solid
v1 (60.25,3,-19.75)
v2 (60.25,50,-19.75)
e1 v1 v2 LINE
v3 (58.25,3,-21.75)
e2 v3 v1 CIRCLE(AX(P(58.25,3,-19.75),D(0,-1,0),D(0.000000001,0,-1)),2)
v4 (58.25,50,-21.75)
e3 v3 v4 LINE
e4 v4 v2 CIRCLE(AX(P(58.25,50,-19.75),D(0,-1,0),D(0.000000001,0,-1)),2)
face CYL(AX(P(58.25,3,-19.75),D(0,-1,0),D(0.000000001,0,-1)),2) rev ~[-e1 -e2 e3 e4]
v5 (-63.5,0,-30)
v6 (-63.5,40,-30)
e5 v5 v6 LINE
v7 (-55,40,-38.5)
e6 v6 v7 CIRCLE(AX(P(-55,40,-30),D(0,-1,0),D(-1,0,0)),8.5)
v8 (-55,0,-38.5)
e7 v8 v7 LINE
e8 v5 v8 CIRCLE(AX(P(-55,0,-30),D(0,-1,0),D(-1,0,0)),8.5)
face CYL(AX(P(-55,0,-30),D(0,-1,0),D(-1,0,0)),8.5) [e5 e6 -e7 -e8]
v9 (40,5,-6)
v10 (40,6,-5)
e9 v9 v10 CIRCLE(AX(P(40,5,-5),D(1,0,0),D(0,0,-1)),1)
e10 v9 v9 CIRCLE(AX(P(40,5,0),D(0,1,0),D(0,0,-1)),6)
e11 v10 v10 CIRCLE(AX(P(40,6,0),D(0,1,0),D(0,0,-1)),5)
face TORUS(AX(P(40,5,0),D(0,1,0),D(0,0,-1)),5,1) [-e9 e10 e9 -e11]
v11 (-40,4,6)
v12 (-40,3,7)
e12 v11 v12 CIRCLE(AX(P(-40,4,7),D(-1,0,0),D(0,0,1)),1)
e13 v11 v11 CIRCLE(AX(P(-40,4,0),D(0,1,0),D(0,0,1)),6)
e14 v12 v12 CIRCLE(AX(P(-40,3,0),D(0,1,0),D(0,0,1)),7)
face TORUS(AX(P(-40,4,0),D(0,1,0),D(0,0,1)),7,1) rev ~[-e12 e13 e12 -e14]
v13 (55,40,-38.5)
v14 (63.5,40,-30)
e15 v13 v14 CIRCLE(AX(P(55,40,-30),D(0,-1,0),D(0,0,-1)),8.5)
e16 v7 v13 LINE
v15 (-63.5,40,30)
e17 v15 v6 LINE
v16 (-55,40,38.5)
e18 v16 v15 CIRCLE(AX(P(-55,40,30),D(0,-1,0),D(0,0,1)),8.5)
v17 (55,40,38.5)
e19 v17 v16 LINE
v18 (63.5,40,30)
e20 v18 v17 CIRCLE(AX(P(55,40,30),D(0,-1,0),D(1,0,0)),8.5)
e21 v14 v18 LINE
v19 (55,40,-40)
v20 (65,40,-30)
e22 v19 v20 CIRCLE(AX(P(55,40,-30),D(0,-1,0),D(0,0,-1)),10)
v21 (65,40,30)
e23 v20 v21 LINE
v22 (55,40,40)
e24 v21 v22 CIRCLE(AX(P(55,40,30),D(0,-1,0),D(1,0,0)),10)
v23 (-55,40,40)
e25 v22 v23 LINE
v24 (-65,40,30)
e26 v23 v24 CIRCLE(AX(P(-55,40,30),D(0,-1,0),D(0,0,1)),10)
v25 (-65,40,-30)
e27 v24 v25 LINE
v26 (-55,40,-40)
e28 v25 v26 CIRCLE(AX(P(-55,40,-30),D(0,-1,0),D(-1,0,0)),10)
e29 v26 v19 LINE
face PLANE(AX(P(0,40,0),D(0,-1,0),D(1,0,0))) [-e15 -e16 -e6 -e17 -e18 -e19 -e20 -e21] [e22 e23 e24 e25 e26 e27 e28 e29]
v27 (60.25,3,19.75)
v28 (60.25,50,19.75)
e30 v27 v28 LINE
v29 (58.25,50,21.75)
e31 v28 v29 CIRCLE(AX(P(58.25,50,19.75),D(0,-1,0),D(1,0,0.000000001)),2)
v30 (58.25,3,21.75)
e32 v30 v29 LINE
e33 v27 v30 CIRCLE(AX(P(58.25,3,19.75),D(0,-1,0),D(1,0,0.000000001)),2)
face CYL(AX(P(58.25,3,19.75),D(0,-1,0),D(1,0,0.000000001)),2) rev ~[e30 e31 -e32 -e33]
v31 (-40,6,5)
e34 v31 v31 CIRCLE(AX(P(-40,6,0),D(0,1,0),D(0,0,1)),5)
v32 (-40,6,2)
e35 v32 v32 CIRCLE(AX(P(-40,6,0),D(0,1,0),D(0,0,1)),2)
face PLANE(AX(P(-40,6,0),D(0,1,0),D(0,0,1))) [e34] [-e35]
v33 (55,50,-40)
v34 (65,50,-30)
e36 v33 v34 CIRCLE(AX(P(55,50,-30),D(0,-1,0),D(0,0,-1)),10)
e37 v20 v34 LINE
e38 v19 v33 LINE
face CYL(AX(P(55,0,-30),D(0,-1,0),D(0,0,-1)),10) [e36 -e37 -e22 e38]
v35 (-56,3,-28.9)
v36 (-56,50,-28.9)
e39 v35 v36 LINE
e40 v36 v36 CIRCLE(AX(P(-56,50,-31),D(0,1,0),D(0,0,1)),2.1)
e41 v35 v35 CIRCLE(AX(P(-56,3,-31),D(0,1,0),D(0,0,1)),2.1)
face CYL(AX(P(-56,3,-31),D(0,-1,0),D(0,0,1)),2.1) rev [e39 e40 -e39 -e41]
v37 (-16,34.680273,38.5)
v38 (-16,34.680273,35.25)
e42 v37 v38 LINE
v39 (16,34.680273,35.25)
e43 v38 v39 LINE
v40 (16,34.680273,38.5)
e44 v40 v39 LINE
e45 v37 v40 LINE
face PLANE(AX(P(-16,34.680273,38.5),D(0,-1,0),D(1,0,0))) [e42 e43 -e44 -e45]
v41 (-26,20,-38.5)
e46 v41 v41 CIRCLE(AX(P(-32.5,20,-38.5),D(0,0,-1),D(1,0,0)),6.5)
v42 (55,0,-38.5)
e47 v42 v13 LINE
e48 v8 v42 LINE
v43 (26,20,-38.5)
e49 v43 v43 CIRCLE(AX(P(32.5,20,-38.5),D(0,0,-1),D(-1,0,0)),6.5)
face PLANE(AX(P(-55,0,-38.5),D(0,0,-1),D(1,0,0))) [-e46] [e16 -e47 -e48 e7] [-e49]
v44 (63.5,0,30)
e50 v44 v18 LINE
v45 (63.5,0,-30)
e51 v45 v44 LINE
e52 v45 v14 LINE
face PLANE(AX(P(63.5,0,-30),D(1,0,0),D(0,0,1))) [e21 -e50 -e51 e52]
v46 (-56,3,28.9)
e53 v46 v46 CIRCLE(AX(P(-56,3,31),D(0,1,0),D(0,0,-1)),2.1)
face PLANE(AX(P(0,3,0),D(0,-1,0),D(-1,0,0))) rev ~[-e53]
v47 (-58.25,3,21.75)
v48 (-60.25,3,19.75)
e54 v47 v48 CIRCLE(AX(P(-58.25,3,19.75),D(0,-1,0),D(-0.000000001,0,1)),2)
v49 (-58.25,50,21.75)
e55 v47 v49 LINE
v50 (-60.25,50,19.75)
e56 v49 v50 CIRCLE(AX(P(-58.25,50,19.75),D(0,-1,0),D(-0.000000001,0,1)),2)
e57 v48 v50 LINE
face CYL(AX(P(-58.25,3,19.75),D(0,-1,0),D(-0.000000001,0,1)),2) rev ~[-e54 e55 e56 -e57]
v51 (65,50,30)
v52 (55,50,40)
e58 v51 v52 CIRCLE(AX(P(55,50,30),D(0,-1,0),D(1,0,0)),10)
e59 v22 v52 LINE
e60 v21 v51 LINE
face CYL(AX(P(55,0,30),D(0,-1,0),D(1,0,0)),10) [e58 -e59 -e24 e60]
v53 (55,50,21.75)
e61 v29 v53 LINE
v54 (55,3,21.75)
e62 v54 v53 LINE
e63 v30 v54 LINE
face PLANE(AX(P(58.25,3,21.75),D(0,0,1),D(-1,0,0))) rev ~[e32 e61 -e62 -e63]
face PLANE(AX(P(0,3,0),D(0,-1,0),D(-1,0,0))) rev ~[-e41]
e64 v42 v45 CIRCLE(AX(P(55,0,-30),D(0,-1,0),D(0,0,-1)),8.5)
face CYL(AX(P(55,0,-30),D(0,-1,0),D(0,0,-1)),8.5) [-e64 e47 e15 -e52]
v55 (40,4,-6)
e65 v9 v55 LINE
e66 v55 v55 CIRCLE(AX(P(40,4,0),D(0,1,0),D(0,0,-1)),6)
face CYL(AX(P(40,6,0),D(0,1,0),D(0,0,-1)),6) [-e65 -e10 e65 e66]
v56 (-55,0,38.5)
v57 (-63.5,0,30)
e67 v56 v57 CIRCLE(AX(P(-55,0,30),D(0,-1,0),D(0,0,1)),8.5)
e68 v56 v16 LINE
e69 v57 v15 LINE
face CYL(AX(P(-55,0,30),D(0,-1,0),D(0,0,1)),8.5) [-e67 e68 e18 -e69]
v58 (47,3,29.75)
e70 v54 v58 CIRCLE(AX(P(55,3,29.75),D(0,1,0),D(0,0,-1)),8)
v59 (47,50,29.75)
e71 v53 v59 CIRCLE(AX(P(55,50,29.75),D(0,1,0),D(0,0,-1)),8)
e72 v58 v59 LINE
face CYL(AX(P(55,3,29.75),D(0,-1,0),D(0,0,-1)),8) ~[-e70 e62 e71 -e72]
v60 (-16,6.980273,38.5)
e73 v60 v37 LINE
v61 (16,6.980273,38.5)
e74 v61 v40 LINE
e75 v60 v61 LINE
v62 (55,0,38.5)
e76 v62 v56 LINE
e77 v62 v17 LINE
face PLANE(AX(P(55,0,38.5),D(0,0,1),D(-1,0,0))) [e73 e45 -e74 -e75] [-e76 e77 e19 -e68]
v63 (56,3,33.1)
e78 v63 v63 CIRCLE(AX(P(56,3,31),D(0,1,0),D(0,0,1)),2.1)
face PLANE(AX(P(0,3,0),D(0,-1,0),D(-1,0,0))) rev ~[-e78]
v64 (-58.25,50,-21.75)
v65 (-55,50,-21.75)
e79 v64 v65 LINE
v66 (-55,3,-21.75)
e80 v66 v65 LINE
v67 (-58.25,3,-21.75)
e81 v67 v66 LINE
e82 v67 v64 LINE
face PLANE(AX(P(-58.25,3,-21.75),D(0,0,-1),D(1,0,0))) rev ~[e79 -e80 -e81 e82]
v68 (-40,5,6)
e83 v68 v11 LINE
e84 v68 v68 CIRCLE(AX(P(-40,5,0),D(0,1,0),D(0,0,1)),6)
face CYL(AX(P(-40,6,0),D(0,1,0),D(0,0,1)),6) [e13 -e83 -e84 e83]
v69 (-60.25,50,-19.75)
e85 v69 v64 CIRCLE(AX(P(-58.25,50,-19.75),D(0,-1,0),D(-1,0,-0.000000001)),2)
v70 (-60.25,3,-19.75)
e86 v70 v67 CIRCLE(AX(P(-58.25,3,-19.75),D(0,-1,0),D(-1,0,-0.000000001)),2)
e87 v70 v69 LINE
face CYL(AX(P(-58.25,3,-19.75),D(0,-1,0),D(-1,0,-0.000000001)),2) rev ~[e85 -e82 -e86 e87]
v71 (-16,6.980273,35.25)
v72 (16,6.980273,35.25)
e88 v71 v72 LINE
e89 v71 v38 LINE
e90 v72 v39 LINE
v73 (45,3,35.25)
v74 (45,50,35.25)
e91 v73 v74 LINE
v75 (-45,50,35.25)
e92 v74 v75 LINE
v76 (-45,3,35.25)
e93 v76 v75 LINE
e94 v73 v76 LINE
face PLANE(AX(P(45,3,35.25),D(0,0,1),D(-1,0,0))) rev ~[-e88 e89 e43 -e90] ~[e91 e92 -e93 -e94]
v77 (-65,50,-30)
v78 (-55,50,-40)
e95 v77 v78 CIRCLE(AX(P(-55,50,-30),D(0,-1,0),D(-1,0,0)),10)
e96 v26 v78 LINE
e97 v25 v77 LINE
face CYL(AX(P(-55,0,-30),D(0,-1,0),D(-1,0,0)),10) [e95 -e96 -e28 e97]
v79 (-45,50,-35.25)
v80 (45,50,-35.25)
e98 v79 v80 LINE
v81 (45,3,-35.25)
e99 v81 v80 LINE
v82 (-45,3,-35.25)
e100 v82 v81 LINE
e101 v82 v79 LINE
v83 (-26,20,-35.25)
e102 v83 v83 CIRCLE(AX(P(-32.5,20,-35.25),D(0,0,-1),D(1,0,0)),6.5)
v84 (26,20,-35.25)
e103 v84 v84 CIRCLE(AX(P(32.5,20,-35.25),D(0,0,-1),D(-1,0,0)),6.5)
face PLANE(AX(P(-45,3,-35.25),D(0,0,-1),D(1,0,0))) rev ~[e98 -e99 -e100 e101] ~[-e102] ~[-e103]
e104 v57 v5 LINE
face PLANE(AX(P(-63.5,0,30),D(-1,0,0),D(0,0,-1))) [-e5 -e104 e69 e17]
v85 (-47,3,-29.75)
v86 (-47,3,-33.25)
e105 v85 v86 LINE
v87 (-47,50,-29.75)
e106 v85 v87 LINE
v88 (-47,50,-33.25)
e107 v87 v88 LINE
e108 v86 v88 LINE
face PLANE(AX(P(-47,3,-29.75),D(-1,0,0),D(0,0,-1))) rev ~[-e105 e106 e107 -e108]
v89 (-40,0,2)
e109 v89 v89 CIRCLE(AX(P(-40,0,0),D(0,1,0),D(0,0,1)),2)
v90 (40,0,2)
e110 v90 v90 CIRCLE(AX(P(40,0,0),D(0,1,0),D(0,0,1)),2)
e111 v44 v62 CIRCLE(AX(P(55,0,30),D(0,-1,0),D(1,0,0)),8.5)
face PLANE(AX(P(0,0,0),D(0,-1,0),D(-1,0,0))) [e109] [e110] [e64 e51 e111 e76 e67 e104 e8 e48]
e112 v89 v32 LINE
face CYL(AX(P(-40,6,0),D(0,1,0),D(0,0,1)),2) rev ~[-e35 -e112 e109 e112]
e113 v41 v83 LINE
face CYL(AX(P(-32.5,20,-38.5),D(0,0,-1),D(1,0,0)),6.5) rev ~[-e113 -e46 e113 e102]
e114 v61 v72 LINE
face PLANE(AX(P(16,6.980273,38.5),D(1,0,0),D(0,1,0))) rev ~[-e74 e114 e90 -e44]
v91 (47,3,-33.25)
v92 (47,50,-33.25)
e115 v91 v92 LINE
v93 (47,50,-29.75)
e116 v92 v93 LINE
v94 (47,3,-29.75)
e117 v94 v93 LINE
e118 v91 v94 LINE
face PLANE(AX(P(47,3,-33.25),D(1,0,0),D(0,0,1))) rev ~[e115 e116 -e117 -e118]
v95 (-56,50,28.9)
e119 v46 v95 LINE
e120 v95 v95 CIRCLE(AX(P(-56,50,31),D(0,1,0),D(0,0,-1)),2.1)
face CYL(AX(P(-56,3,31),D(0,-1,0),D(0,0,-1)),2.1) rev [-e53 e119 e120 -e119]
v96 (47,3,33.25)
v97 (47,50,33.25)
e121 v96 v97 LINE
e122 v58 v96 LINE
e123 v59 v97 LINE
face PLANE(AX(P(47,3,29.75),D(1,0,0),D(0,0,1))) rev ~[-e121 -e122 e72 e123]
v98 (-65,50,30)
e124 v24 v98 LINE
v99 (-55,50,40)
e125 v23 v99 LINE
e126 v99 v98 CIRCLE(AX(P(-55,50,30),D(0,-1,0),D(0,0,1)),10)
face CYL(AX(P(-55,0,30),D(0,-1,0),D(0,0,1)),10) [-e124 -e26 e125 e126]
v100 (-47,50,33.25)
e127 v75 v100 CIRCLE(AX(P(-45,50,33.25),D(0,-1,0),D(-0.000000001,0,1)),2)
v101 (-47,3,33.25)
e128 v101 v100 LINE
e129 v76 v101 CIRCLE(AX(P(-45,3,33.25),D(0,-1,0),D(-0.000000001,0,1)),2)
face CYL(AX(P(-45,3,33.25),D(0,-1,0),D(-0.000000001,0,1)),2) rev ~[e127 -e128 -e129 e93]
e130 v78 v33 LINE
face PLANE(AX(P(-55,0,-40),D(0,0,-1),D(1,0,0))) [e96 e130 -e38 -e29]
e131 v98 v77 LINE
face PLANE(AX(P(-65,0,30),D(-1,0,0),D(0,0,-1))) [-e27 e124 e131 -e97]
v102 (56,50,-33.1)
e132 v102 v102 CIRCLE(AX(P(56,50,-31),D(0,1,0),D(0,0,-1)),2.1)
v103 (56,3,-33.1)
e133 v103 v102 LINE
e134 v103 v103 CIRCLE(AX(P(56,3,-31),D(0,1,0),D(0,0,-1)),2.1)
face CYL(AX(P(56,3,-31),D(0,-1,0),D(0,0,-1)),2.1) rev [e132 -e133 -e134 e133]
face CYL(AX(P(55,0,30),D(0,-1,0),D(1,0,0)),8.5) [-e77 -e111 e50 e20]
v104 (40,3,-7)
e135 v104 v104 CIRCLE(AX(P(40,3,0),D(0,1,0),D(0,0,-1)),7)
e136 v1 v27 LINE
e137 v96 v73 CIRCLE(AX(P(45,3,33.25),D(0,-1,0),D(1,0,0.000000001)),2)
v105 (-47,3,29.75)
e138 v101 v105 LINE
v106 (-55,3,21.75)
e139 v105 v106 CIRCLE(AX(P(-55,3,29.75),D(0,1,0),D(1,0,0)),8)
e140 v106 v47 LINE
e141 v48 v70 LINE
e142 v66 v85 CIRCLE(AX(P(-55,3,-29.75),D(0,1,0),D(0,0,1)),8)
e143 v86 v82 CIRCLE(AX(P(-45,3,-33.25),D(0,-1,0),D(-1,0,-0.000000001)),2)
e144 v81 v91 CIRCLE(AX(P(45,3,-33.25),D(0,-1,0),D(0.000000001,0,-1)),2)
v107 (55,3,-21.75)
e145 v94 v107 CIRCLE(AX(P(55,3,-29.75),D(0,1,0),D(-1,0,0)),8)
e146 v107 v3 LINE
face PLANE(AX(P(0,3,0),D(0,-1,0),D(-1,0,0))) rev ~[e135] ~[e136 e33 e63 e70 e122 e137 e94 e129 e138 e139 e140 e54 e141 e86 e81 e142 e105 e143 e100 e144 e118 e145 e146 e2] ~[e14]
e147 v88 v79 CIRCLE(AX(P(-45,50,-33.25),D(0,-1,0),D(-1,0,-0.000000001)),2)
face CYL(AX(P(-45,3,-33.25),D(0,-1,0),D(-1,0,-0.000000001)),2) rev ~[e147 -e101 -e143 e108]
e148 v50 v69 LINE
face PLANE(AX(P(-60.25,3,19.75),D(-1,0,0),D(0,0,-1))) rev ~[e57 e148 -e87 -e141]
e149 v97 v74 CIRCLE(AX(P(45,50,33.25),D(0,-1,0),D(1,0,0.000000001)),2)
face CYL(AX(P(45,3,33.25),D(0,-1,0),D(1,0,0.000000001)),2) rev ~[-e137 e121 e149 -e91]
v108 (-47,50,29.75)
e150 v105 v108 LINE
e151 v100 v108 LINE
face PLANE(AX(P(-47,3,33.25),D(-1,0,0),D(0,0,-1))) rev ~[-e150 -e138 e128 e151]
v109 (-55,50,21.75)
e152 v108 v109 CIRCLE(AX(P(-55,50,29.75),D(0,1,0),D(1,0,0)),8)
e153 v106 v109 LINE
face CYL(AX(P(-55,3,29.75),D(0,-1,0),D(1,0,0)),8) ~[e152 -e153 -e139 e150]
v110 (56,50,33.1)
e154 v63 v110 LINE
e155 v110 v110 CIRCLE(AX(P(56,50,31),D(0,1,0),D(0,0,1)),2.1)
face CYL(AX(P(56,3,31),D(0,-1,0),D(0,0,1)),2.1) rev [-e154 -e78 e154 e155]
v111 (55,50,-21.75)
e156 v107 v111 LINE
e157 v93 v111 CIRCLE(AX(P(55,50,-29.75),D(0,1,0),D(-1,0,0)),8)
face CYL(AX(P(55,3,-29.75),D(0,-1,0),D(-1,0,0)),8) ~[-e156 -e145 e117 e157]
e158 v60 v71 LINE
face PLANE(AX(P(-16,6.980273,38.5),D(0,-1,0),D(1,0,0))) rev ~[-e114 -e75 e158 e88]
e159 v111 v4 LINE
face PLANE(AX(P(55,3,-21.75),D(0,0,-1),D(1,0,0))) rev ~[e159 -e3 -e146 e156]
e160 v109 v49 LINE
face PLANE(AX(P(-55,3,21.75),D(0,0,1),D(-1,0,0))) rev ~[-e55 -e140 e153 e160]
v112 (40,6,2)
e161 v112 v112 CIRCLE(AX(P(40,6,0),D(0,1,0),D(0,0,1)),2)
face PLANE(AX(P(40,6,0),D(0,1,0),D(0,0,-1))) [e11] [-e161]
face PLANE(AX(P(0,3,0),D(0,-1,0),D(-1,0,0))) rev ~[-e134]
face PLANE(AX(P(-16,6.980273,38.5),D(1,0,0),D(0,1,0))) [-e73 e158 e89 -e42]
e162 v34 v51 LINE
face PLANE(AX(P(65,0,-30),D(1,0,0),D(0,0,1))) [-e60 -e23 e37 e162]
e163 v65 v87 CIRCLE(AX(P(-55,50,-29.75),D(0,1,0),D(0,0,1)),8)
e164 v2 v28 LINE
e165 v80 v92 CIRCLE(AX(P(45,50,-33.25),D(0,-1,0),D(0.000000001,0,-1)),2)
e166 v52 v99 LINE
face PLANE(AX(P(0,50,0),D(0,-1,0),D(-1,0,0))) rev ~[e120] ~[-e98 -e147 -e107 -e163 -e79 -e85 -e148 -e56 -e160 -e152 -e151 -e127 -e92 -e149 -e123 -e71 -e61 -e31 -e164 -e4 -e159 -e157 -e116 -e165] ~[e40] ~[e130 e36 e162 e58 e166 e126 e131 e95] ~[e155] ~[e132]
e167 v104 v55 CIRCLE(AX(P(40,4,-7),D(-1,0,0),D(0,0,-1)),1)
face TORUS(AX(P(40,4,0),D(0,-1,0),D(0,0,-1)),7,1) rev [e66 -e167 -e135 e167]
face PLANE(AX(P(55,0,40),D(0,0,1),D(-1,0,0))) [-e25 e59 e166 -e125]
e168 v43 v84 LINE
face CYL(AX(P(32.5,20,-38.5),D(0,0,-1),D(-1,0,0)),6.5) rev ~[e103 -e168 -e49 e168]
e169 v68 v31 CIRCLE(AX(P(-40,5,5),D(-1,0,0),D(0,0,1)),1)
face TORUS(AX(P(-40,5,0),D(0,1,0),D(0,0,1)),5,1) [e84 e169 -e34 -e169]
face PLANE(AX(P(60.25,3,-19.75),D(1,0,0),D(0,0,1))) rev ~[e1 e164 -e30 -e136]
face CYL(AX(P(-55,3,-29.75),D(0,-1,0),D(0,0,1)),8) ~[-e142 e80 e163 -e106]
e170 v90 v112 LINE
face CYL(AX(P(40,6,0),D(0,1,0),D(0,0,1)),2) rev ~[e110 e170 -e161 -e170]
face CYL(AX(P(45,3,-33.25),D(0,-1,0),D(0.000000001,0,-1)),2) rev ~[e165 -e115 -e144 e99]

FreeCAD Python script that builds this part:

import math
import FreeCAD as App
import Part
import Sketcher
from FreeCAD import Vector
Q = App.Units.Quantity


def edges_at(feature, points):
    """Names of the edges that pass closest to the given points."""
    edges = feature.Shape.Edges
    near = lambda p: min(range(len(edges)), key=lambda i: edges[i].distToShape(Part.Vertex(*p))[0])
    return sorted({f"Edge{near(p) + 1}" for p in points})


def faces_at(feature, points):
    """Names of the faces that lie closest to the given points."""
    faces = feature.Shape.Faces
    near = lambda p: min(range(len(faces)), key=lambda i: faces[i].distToShape(Part.Vertex(*p))[0])
    return sorted({f"Face{near(p) + 1}" for p in points})


def add_polygon(sketch, points):
    """Adds a closed chain of lines whose ends are joined by coincident constraints."""
    first, n = sketch.GeometryCount, len(points)
    for a, b in zip(points, points[1:] + points[:1]):
        sketch.addGeometry(Part.LineSegment(App.Vector(*a, 0), App.Vector(*b, 0)), False)
    for i in range(n):
        sketch.addConstraint(Sketcher.Constraint("Coincident", first + i, 2, first + (i + 1) % n, 1))

doc = App.newDocument("Part")
params = doc.addObject("Spreadsheet::Sheet", "Params")
for row, (alias, value) in enumerate([
    ("sketch1_radius", "10 mm"),
    ("sketch1_width", "110 mm"),
    ("sketch1_height", "60 mm"),
    ("pad1_length", "50 mm"),
    ("thickness_wall", "3 mm"),
    ("sketch2_radius", "10 mm"),
    ("sketch2_radius2", "8.5 mm"),
    ("sketch2_width", "110 mm"),
    ("sketch2_height", "60 mm"),
    ("pocket1_length", "40 mm"),
    ("sketch3_diameter", "4 mm"),
    ("pocket2_length", "10 mm"),
    ("sketch4_radius", "7 mm"),
    ("sketch4_radius2", "2 mm"),
    ("sketch4_radius3", "8 mm"),
    ("sketch4_diameter", "4.2 mm"),
    ("sketch4_width", "110 mm"),
    ("pad2_length", "47 mm"),
    ("sketch5_diameter", "12 mm"),
    ("sketch5_diameter2", "4 mm"),
    ("pad3_length", "3 mm"),
    ("fillet_radius", "1 mm"),
    ("sketch6_width", "32 mm"),
    ("sketch6_height", "27.7 mm"),
    ("pocket3_length", "10 mm"),
    ("sketch7_diameter", "13 mm"),
    ("pocket4_length", "10 mm"),
], start=1):
    params.set(f"A{row}", alias)
    params.set(f"B{row}", "=" + value)
    params.setAlias(f"B{row}", alias)

body = doc.addObject("PartDesign::Body", "Body")

# Sketch on XZ plane
sketch1 = body.newObject("Sketcher::SketchObject", "Sketch")
sketch1.AttachmentSupport = (doc.getObject("XZ_Plane"), [""])
sketch1.MapMode = "FlatFace"
sketch1.addGeometry([
    Part.LineSegment(Vector(55, -40, 0), Vector(-55, -40, 0)),  # 0
    Part.ArcOfCircle(Part.Circle(Vector(-55, -30, 0), Vector(0, 0, 1), 10), math.radians(180), math.radians(270)),  # 1
    Part.LineSegment(Vector(-65, -30, 0), Vector(-65, 30, 0)),  # 2
    Part.ArcOfCircle(Part.Circle(Vector(-55, 30, 0), Vector(0, 0, 1), 10), math.radians(90), math.radians(180)),  # 3
    Part.LineSegment(Vector(-55, 40, 0), Vector(55, 40, 0)),  # 4
    Part.ArcOfCircle(Part.Circle(Vector(55, 30, 0), Vector(0, 0, 1), 10), math.radians(0), math.radians(90)),  # 5
    Part.LineSegment(Vector(65, 30, 0), Vector(65, -30, 0)),  # 6
    Part.ArcOfCircle(Part.Circle(Vector(55, -30, 0), Vector(0, 0, 1), 10), math.radians(-90), math.radians(0)),  # 7
], False)
sketch1.addConstraint([
    Sketcher.Constraint("Tangent", 0, 2, 1, 2),
    Sketcher.Constraint("Tangent", 1, 1, 2, 1),
    Sketcher.Constraint("Tangent", 2, 2, 3, 2),
    Sketcher.Constraint("Tangent", 3, 1, 4, 1),
    Sketcher.Constraint("Tangent", 4, 2, 5, 2),
    Sketcher.Constraint("Tangent", 5, 1, 6, 1),
    Sketcher.Constraint("Tangent", 6, 2, 7, 2),
    Sketcher.Constraint("Tangent", 7, 1, 0, 1),
    Sketcher.Constraint("Horizontal", 0),
    Sketcher.Constraint("Vertical", 2),
    Sketcher.Constraint("Horizontal", 4),
    Sketcher.Constraint("Vertical", 6),
    Sketcher.Constraint("Equal", 1, 3),
    Sketcher.Constraint("Equal", 3, 5),
    Sketcher.Constraint("Equal", 5, 7),
    Sketcher.Constraint("Symmetric", 1, 3, 5, 3, -1, 1),
    Sketcher.Constraint("Radius", 1, Q("10 mm")),
    Sketcher.Constraint("DistanceX", 0, 2, 0, 1, Q("110 mm")),
    Sketcher.Constraint("DistanceY", 2, 1, 2, 2, Q("60 mm")),
])
sketch1.setExpression("Constraints[16]", "Params.sketch1_radius")
sketch1.setExpression("Constraints[17]", "Params.sketch1_width")
sketch1.setExpression("Constraints[18]", "Params.sketch1_height")
pad1 = body.newObject("PartDesign::Pad", "Pad")
pad1.Profile = sketch1
pad1.setExpression("Length", "Params.pad1_length")
pad1.Reversed = True
doc.recompute()

thickness = body.newObject("PartDesign::Thickness", "Thickness")
thickness.Base = (pad1, faces_at(pad1, [(0, 50, 0)]))
thickness.setExpression("Value", "Params.thickness_wall")
thickness.Reversed = True
thickness.Join = "Intersection"

# Sketch on XZ plane
sketch2 = body.newObject("Sketcher::SketchObject", "Sketch001")
sketch2.AttachmentSupport = (doc.getObject("XZ_Plane"), [""])
sketch2.MapMode = "FlatFace"
sketch2.addGeometry([
    Part.LineSegment(Vector(65, -30, 0), Vector(65, 30, 0)),  # 0
    Part.ArcOfCircle(Part.Circle(Vector(55, 30, 0), Vector(0, 0, 1), 10), math.radians(0), math.radians(90)),  # 1
    Part.LineSegment(Vector(55, 40, 0), Vector(-55, 40, 0)),  # 2
    Part.ArcOfCircle(Part.Circle(Vector(-55, 30, 0), Vector(0, 0, 1), 10), math.radians(90), math.radians(180)),  # 3
    Part.LineSegment(Vector(-65, 30, 0), Vector(-65, -30, 0)),  # 4
    Part.ArcOfCircle(Part.Circle(Vector(-55, -30, 0), Vector(0, 0, 1), 10), math.radians(180), math.radians(270)),  # 5
    Part.LineSegment(Vector(-55, -40, 0), Vector(55, -40, 0)),  # 6
    Part.ArcOfCircle(Part.Circle(Vector(55, -30, 0), Vector(0, 0, 1), 10), math.radians(-90), math.radians(0)),  # 7
    Part.LineSegment(Vector(-64, -30, 0), Vector(-64, 30, 0)),  # 8
    Part.ArcOfCircle(Part.Circle(Vector(-55, 30, 0), Vector(0, 0, 1), 8), math.radians(90), math.radians(180)),  # 9
    Part.LineSegment(Vector(-55, 38, 0), Vector(55, 38, 0)),  # 10
    Part.ArcOfCircle(Part.Circle(Vector(55, 30, 0), Vector(0, 0, 1), 8), math.radians(0), math.radians(90)),  # 11
    Part.LineSegment(Vector(64, 30, 0), Vector(64, -30, 0)),  # 12
    Part.ArcOfCircle(Part.Circle(Vector(55, -30, 0), Vector(0, 0, 1), 8), math.radians(-90), math.radians(0)),  # 13
    Part.LineSegment(Vector(55, -38, 0), Vector(-55, -38, 0)),  # 14
    Part.ArcOfCircle(Part.Circle(Vector(-55, -30, 0), Vector(0, 0, 1), 8), math.radians(180), math.radians(270)),  # 15
], False)
sketch2.addConstraint([
    Sketcher.Constraint("Tangent", 0, 2, 1, 1),
    Sketcher.Constraint("Tangent", 1, 2, 2, 1),
    Sketcher.Constraint("Tangent", 2, 2, 3, 1),
    Sketcher.Constraint("Tangent", 3, 2, 4, 1),
    Sketcher.Constraint("Tangent", 4, 2, 5, 1),
    Sketcher.Constraint("Tangent", 5, 2, 6, 1),
    Sketcher.Constraint("Tangent", 6, 2, 7, 1),
    Sketcher.Constraint("Tangent", 7, 2, 0, 1),
    Sketcher.Constraint("Tangent", 8, 2, 9, 2),
    Sketcher.Constraint("Tangent", 9, 1, 10, 1),
    Sketcher.Constraint("Tangent", 10, 2, 11, 2),
    Sketcher.Constraint("Tangent", 11, 1, 12, 1),
    Sketcher.Constraint("Tangent", 12, 2, 13, 2),
    Sketcher.Constraint("Tangent", 13, 1, 14, 1),
    Sketcher.Constraint("Tangent", 14, 2, 15, 2),
    Sketcher.Constraint("Tangent", 15, 1, 8, 1),
    Sketcher.Constraint("Vertical", 0),
    Sketcher.Constraint("Horizontal", 2),
    Sketcher.Constraint("Vertical", 4),
    Sketcher.Constraint("Horizontal", 6),
    Sketcher.Constraint("Vertical", 8),
    Sketcher.Constraint("Horizontal", 10),
    Sketcher.Constraint("Vertical", 12),
    Sketcher.Constraint("Horizontal", 14),
    Sketcher.Constraint("Coincident", 9, 3, 3, 3),
    Sketcher.Constraint("Coincident", 11, 3, 1, 3),
    Sketcher.Constraint("Coincident", 13, 3, 7, 3),
    Sketcher.Constraint("Equal", 1, 3),
    Sketcher.Constraint("Equal", 3, 5),
    Sketcher.Constraint("Equal", 5, 7),
    Sketcher.Constraint("Equal", 13, 15),
    Sketcher.Constraint("Symmetric", 1, 3, 5, 3, -1, 1),
    Sketcher.Constraint("Radius", 1, Q("10 mm")),
    Sketcher.Constraint("Radius", 9, Q("8.5 mm")),
    Sketcher.Constraint("DistanceX", 2, 2, 2, 1, Q("110 mm")),
    Sketcher.Constraint("DistanceY", 0, 1, 0, 2, Q("60 mm")),
])
sketch2.setExpression("Constraints[32]", "Params.sketch2_radius")
sketch2.setExpression("Constraints[33]", "Params.sketch2_radius2")
sketch2.setExpression("Constraints[34]", "Params.sketch2_width")
sketch2.setExpression("Constraints[35]", "Params.sketch2_height")
pocket1 = body.newObject("PartDesign::Pocket", "Pocket")
pocket1.Profile = sketch2
pocket1.setExpression("Length", "Params.pocket1_length")

# Sketch on XZ plane
sketch3 = body.newObject("Sketcher::SketchObject", "Sketch002")
sketch3.AttachmentSupport = (doc.getObject("XZ_Plane"), [""])
sketch3.MapMode = "FlatFace"
sketch3.AttachmentOffset = App.Placement(Vector(0, 0, -3), App.Rotation())
sketch3.addGeometry([
    Part.Circle(Vector(-40, 0, 0), Vector(0, 0, 1), 2),
    Part.Circle(Vector(40, 0, 0), Vector(0, 0, 1), 2),
], False)
sketch3.addConstraint([
    Sketcher.Constraint("Equal", 0, 1),
    Sketcher.Constraint("Symmetric", 0, 3, 1, 3, -1, 1),
    Sketcher.Constraint("PointOnObject", 0, 3, -1),
    Sketcher.Constraint("Diameter", 0, Q("4 mm")),
    Sketcher.Constraint("DistanceX", 0, 3, -1, 1, Q("40 mm")),
])
sketch3.setExpression("Constraints[3]", "Params.sketch3_diameter")
pocket2 = body.newObject("PartDesign::Pocket", "Pocket001")
pocket2.Profile = sketch3
pocket2.setExpression("Length", "Params.pocket2_length")
pocket2.Reversed = True
body2 = doc.addObject("PartDesign::Body", "Body001")

# Sketch on XZ plane
sketch4 = body2.newObject("Sketcher::SketchObject", "Sketch003")
sketch4.AttachmentSupport = (doc.getObject("XZ_Plane001"), [""])
sketch4.MapMode = "FlatFace"
sketch4.AttachmentOffset = App.Placement(Vector(0, 0, -3), App.Rotation())
sketch4.addGeometry([
    Part.LineSegment(Vector(62, 30, 0), Vector(62, -30, 0)),  # 0
    Part.ArcOfCircle(Part.Circle(Vector(55, -30, 0), Vector(0, 0, 1), 7), math.radians(-90), math.radians(0)),  # 1
    Part.LineSegment(Vector(55, -37, 0), Vector(-55, -37, 0)),  # 2
    Part.ArcOfCircle(Part.Circle(Vector(-55, -30, 0), Vector(0, 0, 1), 7), math.radians(-180), math.radians(-90)),  # 3
    Part.LineSegment(Vector(-62, -30, 0), Vector(-62, 30, 0)),  # 4
    Part.ArcOfCircle(Part.Circle(Vector(-55, 30, 0), Vector(0, 0, 1), 7), math.radians(90), math.radians(180)),  # 5
    Part.LineSegment(Vector(-55, 37, 0), Vector(55, 37, 0)),  # 6
    Part.ArcOfCircle(Part.Circle(Vector(55, 30, 0), Vector(0, 0, 1), 7), math.radians(0), math.radians(90)),  # 7
    Part.Circle(Vector(-56, 31, 0), Vector(0, 0, 1), 2.1),  # 8
    Part.Circle(Vector(56, 31, 0), Vector(0, 0, 1), 2.1),  # 9
    Part.Circle(Vector(-56, -31, 0), Vector(0, 0, 1), 2.1),  # 10
    Part.ArcOfCircle(Part.Circle(Vector(-58.2, -19.7, 0), Vector(0, 0, 1), 2), math.radians(-180), math.radians(-90)),  # 11
    Part.LineSegment(Vector(-58.2, -21.8, 0), Vector(-55, -21.8, 0)),  # 12
    Part.ArcOfCircle(Part.Circle(Vector(-55, -29.8, 0), Vector(0, 0, 1), 8), math.radians(0), math.radians(90)),  # 13
    Part.LineSegment(Vector(-47, -29.8, 0), Vector(-47, -33.2, 0)),  # 14
    Part.ArcOfCircle(Part.Circle(Vector(-45, -33.2, 0), Vector(0, 0, 1), 2), math.radians(-180), math.radians(-90)),  # 15
    Part.LineSegment(Vector(-45, -35.2, 0), Vector(45, -35.2, 0)),  # 16
    Part.ArcOfCircle(Part.Circle(Vector(45, -33.2, 0), Vector(0, 0, 1), 2), math.radians(-90), math.radians(0)),  # 17
    Part.LineSegment(Vector(47, -33.2, 0), Vector(47, -29.8, 0)),  # 18
    Part.ArcOfCircle(Part.Circle(Vector(55, -29.8, 0), Vector(0, 0, 1), 8), math.radians(90), math.radians(180)),  # 19
    Part.LineSegment(Vector(55, -21.8, 0), Vector(58.2, -21.8, 0)),  # 20
    Part.ArcOfCircle(Part.Circle(Vector(58.2, -19.7, 0), Vector(0, 0, 1), 2), math.radians(-90), math.radians(0)),  # 21
    Part.LineSegment(Vector(60.2, -19.8, 0), Vector(60.2, 19.8, 0)),  # 22
    Part.ArcOfCircle(Part.Circle(Vector(58.2, 19.7, 0), Vector(0, 0, 1), 2), math.radians(0), math.radians(90)),  # 23
    Part.LineSegment(Vector(58.2, 21.8, 0), Vector(55, 21.8, 0)),  # 24
    Part.ArcOfCircle(Part.Circle(Vector(55, 29.8, 0), Vector(0, 0, 1), 8), math.radians(-180), math.radians(-90)),  # 25
    Part.LineSegment(Vector(47, 29.8, 0), Vector(47, 33.2, 0)),  # 26
    Part.ArcOfCircle(Part.Circle(Vector(45, 33.2, 0), Vector(0, 0, 1), 2), math.radians(0), math.radians(90)),  # 27
    Part.LineSegment(Vector(45, 35.2, 0), Vector(-45, 35.2, 0)),  # 28
    Part.ArcOfCircle(Part.Circle(Vector(-45, 33.2, 0), Vector(0, 0, 1), 2), math.radians(90), math.radians(180)),  # 29
    Part.LineSegment(Vector(-47, 33.2, 0), Vector(-47, 29.8, 0)),  # 30
    Part.ArcOfCircle(Part.Circle(Vector(-55, 29.8, 0), Vector(0, 0, 1), 8), math.radians(-90), math.radians(0)),  # 31
    Part.LineSegment(Vector(-55, 21.8, 0), Vector(-58.2, 21.8, 0)),  # 32
    Part.ArcOfCircle(Part.Circle(Vector(-58.2, 19.7, 0), Vector(0, 0, 1), 2), math.radians(90), math.radians(180)),  # 33
    Part.LineSegment(Vector(-60.2, 19.8, 0), Vector(-60.2, -19.8, 0)),  # 34
    Part.Circle(Vector(56, -31, 0), Vector(0, 0, 1), 2.1),  # 35
], False)
sketch4.addConstraint([
    Sketcher.Constraint("Tangent", 0, 2, 1, 2),
    Sketcher.Constraint("Tangent", 1, 1, 2, 1),
    Sketcher.Constraint("Tangent", 2, 2, 3, 2),
    Sketcher.Constraint("Tangent", 3, 1, 4, 1),
    Sketcher.Constraint("Tangent", 4, 2, 5, 2),
    Sketcher.Constraint("Tangent", 5, 1, 6, 1),
    Sketcher.Constraint("Tangent", 6, 2, 7, 2),
    Sketcher.Constraint("Tangent", 7, 1, 0, 1),
    Sketcher.Constraint("Tangent", 11, 2, 12, 1),
    Sketcher.Constraint("Tangent", 12, 2, 13, 2),
    Sketcher.Constraint("Tangent", 13, 1, 14, 1),
    Sketcher.Constraint("Tangent", 14, 2, 15, 1),
    Sketcher.Constraint("Tangent", 15, 2, 16, 1),
    Sketcher.Constraint("Tangent", 16, 2, 17, 1),
    Sketcher.Constraint("Tangent", 17, 2, 18, 1),
    Sketcher.Constraint("Tangent", 18, 2, 19, 2),
    Sketcher.Constraint("Tangent", 19, 1, 20, 1),
    Sketcher.Constraint("Tangent", 20, 2, 21, 1),
    Sketcher.Constraint("Tangent", 21, 2, 22, 1),
    Sketcher.Constraint("Tangent", 22, 2, 23, 1),
    Sketcher.Constraint("Tangent", 23, 2, 24, 1),
    Sketcher.Constraint("Tangent", 24, 2, 25, 2),
    Sketcher.Constraint("Tangent", 25, 1, 26, 1),
    Sketcher.Constraint("Tangent", 26, 2, 27, 1),
    Sketcher.Constraint("Tangent", 27, 2, 28, 1),
    Sketcher.Constraint("Tangent", 28, 2, 29, 1),
    Sketcher.Constraint("Tangent", 29, 2, 30, 1),
    Sketcher.Constraint("Tangent", 30, 2, 31, 2),
    Sketcher.Constraint("Tangent", 31, 1, 32, 1),
    Sketcher.Constraint("Tangent", 32, 2, 33, 1),
    Sketcher.Constraint("Tangent", 33, 2, 34, 1),
    Sketcher.Constraint("Tangent", 34, 2, 11, 1),
    Sketcher.Constraint("Vertical", 0),
    Sketcher.Constraint("Horizontal", 2),
    Sketcher.Constraint("Vertical", 4),
    Sketcher.Constraint("Horizontal", 6),
    Sketcher.Constraint("Horizontal", 12),
    Sketcher.Constraint("Vertical", 14),
    Sketcher.Constraint("Horizontal", 16),
    Sketcher.Constraint("Vertical", 18),
    Sketcher.Constraint("Horizontal", 20),
    Sketcher.Constraint("Vertical", 22),
    Sketcher.Constraint("Horizontal", 24),
    Sketcher.Constraint("Vertical", 26),
    Sketcher.Constraint("Horizontal", 28),
    Sketcher.Constraint("Vertical", 30),
    Sketcher.Constraint("Horizontal", 32),
    Sketcher.Constraint("Vertical", 34),
    Sketcher.Constraint("Equal", 1, 3),
    Sketcher.Constraint("Equal", 3, 5),
    Sketcher.Constraint("Equal", 5, 7),
    Sketcher.Constraint("Equal", 8, 9),
    Sketcher.Constraint("Equal", 9, 10),
    Sketcher.Constraint("Equal", 11, 15),
    Sketcher.Constraint("Equal", 15, 17),
    Sketcher.Constraint("Equal", 13, 19),
    Sketcher.Constraint("Equal", 17, 21),
    Sketcher.Constraint("Equal", 21, 23),
    Sketcher.Constraint("Equal", 19, 25),
    Sketcher.Constraint("Equal", 23, 27),
    Sketcher.Constraint("Equal", 27, 29),
    Sketcher.Constraint("Equal", 25, 31),
    Sketcher.Constraint("Equal", 29, 33),
    Sketcher.Constraint("Equal", 10, 35),
    Sketcher.Constraint("Symmetric", 1, 3, 5, 3, -1, 1),
    Sketcher.Constraint("Symmetric", 9, 3, 10, 3, -1, 1),
    Sketcher.Constraint("Symmetric", 11, 3, 23, 3, -1, 1),
    Sketcher.Constraint("Symmetric", 15, 3, 27, 3, -1, 1),
    Sketcher.Constraint("Symmetric", 19, 3, 31, 3, -1, 1),
    Sketcher.Constraint("Symmetric", 8, 3, 35, 3, -1, 1),
    Sketcher.Constraint("Symmetric", 8, 3, 9, 3, -2),
    Sketcher.Constraint("Symmetric", 13, 3, 19, 3, -2),
    Sketcher.Constraint("Vertical", 5, 3, 13, 3),
    Sketcher.Constraint("Radius", 1, Q("7 mm")),
    Sketcher.Constraint("Radius", 11, Q("2 mm")),
    Sketcher.Constraint("Radius", 13, Q("8 mm")),
    Sketcher.Constraint("Diameter", 8, Q("4.2 mm")),
    Sketcher.Constraint("DistanceX", 2, 2, 2, 1, Q("110 mm")),
    Sketcher.Constraint("DistanceY", 0, 2, 0, 1, Q("60 mm")),
    Sketcher.Constraint("DistanceY", 14, 2, 14, 1, Q("3.5 mm")),
    Sketcher.Constraint("DistanceY", 22, 1, 22, 2, Q("39.5 mm")),
    Sketcher.Constraint("DistanceX", 8, 3, -1, 1, Q("56 mm")),
    Sketcher.Constraint("DistanceY", -1, 1, 8, 3, Q("31 mm")),
    Sketcher.Constraint("DistanceX", 12, 1, 12, 2, Q("3.25 mm")),
])
sketch4.setExpression("Constraints[73]", "Params.sketch4_radius")
sketch4.setExpression("Constraints[74]", "Params.sketch4_radius2")
sketch4.setExpression("Constraints[75]", "Params.sketch4_radius3")
sketch4.setExpression("Constraints[76]", "Params.sketch4_diameter")
sketch4.setExpression("Constraints[77]", "Params.sketch4_width")
pad2 = body2.newObject("PartDesign::Pad", "Pad001")
pad2.Profile = sketch4
pad2.setExpression("Length", "Params.pad2_length")
pad2.Reversed = True
doc.recompute()

boolean = body2.newObject("PartDesign::Boolean", "Boolean")
boolean.Type = "Fuse"
boolean.addObjects([body])

# Sketch on XZ plane
sketch5 = body2.newObject("Sketcher::SketchObject", "Sketch004")
sketch5.AttachmentSupport = (doc.getObject("XZ_Plane001"), [""])
sketch5.MapMode = "FlatFace"
sketch5.AttachmentOffset = App.Placement(Vector(0, 0, -6), App.Rotation())
sketch5.addGeometry([
    Part.Circle(Vector(-40, 0, 0), Vector(0, 0, 1), 6),
    Part.Circle(Vector(-40, 0, 0), Vector(0, 0, 1), 2),
    Part.Circle(Vector(40, 0, 0), Vector(0, 0, 1), 6),
    Part.Circle(Vector(40, 0, 0), Vector(0, 0, 1), 2),
], False)
sketch5.addConstraint([
    Sketcher.Constraint("Coincident", 1, 3, 0, 3),
    Sketcher.Constraint("Coincident", 3, 3, 2, 3),
    Sketcher.Constraint("Equal", 0, 2),
    Sketcher.Constraint("Equal", 1, 3),
    Sketcher.Constraint("Symmetric", 0, 3, 2, 3, -1, 1),
    Sketcher.Constraint("PointOnObject", 0, 3, -1),
    Sketcher.Constraint("Diameter", 0, Q("12 mm")),
    Sketcher.Constraint("Diameter", 1, Q("4 mm")),
    Sketcher.Constraint("DistanceX", 0, 3, -1, 1, Q("40 mm")),
])
sketch5.setExpression("Constraints[6]", "Params.sketch5_diameter")
sketch5.setExpression("Constraints[7]", "Params.sketch5_diameter2")
pad3 = body2.newObject("PartDesign::Pad", "Pad002")
pad3.Profile = sketch5
pad3.setExpression("Length", "Params.pad3_length")
doc.recompute()

fillet = body2.newObject("PartDesign::Fillet", "Fillet")
fillet.Base = (pad3, edges_at(pad3, [
    (-40, 6, -6),
    (-40, 3, -6),
    (40, 6, 6),
    (40, 3, 6),
]))
fillet.setExpression("Radius", "Params.fillet_radius")

# Sketch on XY plane
sketch6 = body2.newObject("Sketcher::SketchObject", "Sketch005")
sketch6.AttachmentSupport = (doc.getObject("XY_Plane001"), [""])
sketch6.MapMode = "FlatFace"
sketch6.AttachmentOffset = App.Placement(Vector(0, 0, 38.5), App.Rotation())
add_polygon(sketch6, [(-16, 35), (-16, 7), (16, 7), (16, 35)])  # lines 0-3
sketch6.addConstraint([
    Sketcher.Constraint("Vertical", 0),
    Sketcher.Constraint("Horizontal", 1),
    Sketcher.Constraint("Vertical", 2),
    Sketcher.Constraint("Horizontal", 3),
    Sketcher.Constraint("DistanceX", 1, 1, 1, 2, Q("32 mm")),
    Sketcher.Constraint("DistanceY", 0, 2, 0, 1, Q("27.7 mm")),
    Sketcher.Constraint("DistanceX", 0, 2, -1, 1, Q("16 mm")),
    Sketcher.Constraint("DistanceY", -1, 1, 0, 2, Q("6.980273 mm")),
])
sketch6.setExpression("Constraints[8]", "Params.sketch6_width")
sketch6.setExpression("Constraints[9]", "Params.sketch6_height")
pocket3 = body2.newObject("PartDesign::Pocket", "Pocket002")
pocket3.Profile = sketch6
pocket3.setExpression("Length", "Params.pocket3_length")

# Sketch on XY plane
sketch7 = body2.newObject("Sketcher::SketchObject", "Sketch006")
sketch7.AttachmentSupport = (doc.getObject("XY_Plane001"), [""])
sketch7.MapMode = "FlatFace"
sketch7.AttachmentOffset = App.Placement(Vector(0, 0, -38.5), App.Rotation())
sketch7.addGeometry([
    Part.Circle(Vector(32, 20, 0), Vector(0, 0, 1), 6),
    Part.Circle(Vector(-32, 20, 0), Vector(0, 0, 1), 6),
], False)
sketch7.addConstraint([
    Sketcher.Constraint("Equal", 0, 1),
    Sketcher.Constraint("Symmetric", 0, 3, 1, 3, -2),
    Sketcher.Constraint("Diameter", 0, Q("13 mm")),
    Sketcher.Constraint("DistanceY", -1, 1, 0, 3, Q("20 mm")),
    Sketcher.Constraint("DistanceX", 1, 3, 0, 3, Q("65 mm")),
])
sketch7.setExpression("Constraints[2]", "Params.sketch7_diameter")
pocket4 = body2.newObject("PartDesign::Pocket", "Pocket003")
pocket4.Profile = sketch7
pocket4.setExpression("Length", "Params.pocket4_length")
pocket4.Reversed = True

doc.recompute()
